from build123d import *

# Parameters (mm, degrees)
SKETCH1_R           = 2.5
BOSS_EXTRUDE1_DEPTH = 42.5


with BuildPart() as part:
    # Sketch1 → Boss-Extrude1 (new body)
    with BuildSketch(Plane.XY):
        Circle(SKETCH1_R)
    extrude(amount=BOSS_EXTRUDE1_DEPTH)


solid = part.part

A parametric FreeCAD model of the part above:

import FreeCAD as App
import Part
import Sketcher

doc = App.newDocument("Part")
params = doc.addObject("Spreadsheet::Sheet", "Params")
for row, (alias, value) in enumerate([
    ("sketch1_diameter", "5 mm"),
    ("pad1_length", "42.5 mm"),
], start=1):
    params.set(f"A{row}", alias)
    params.set(f"B{row}", "=" + value)
    params.setAlias(f"B{row}", alias)

body = doc.addObject("PartDesign::Body", "Body")

sketch1 = body.newObject("Sketcher::SketchObject", "Sketch")
sketch1.AttachmentSupport = (doc.getObject("XY_Plane"), [""])
sketch1.MapMode = "FlatFace"
sketch1.addGeometry(Part.Circle(App.Vector(0, 0, 0), App.Vector(0, 0, 1), 2.5), False)
sketch1.addConstraint([
    Sketcher.Constraint("Coincident", 0, 3, -1, 1),
    Sketcher.Constraint("Diameter", 0, 5.0),
])
sketch1.setExpression("Constraints[1]", "Params.sketch1_diameter")
pad1 = body.newObject("PartDesign::Pad", "Pad")
pad1.Profile = sketch1
pad1.setExpression("Length", "Params.pad1_length")

doc.recompute()
